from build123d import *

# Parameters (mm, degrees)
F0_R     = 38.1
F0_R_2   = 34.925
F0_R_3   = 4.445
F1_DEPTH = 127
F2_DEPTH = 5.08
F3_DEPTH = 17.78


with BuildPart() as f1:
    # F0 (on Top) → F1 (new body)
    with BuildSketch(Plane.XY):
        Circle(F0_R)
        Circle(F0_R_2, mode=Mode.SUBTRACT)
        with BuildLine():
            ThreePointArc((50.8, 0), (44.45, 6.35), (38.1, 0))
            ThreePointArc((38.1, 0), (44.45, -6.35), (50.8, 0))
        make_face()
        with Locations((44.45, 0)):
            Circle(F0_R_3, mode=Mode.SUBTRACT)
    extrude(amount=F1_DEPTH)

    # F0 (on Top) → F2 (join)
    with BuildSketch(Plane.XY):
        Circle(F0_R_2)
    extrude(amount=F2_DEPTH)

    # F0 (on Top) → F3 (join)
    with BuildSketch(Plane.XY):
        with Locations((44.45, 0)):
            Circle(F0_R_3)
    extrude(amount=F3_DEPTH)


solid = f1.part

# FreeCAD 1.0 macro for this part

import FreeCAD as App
import Part
import Sketcher
Q = App.Units.Quantity

doc = App.newDocument("Part")
body = doc.addObject("PartDesign::Body", "Body")
body.AllowCompound = True

sketch1 = body.newObject("Sketcher::SketchObject", "Sketch")
sketch1.AttachmentSupport = (doc.getObject("XY_Plane"), [""])
sketch1.MapMode = "FlatFace"
sketch1.addGeometry(Part.Circle(App.Vector(0, 0, 0), App.Vector(0, 0, 1), 38.1), False)
sketch1.addGeometry(Part.Circle(App.Vector(0, 0, 0), App.Vector(0, 0, 1), 34.9), False)
sketch1.addGeometry(Part.Circle(App.Vector(44.5, 0, 0), App.Vector(0, 0, 1), 6.3), False)
sketch1.addGeometry(Part.Circle(App.Vector(44.5, 0, 0), App.Vector(0, 0, 1), 4.4), False)
sketch1.addConstraint(Sketcher.Constraint("Coincident", 0, 3, -1, 1))
sketch1.addConstraint(Sketcher.Constraint("Coincident", 1, 3, -1, 1))
sketch1.addConstraint(Sketcher.Constraint("Coincident", 3, 3, 2, 3))
sketch1.addConstraint(Sketcher.Constraint("PointOnObject", 2, 3, -1))
sketch1.addConstraint(Sketcher.Constraint("Diameter", 0, Q("3 in")))
sketch1.addConstraint(Sketcher.Constraint("Diameter", 2, Q("0.5 in")))
sketch1.addConstraint(Sketcher.Constraint("Diameter", 1, Q("2.75 in")))
sketch1.addConstraint(Sketcher.Constraint("Diameter", 3, Q("0.35 in")))
sketch1.addConstraint(Sketcher.Constraint("DistanceX", -1, 1, 2, 3, Q("1.75 in")))
pad1 = body.newObject("PartDesign::Pad", "Pad")
pad1.Profile = sketch1
pad1.Length = Q("5 in")

sketch2 = body.newObject("Sketcher::SketchObject", "Sketch001")
sketch2.AttachmentSupport = (doc.getObject("XY_Plane"), [""])
sketch2.MapMode = "FlatFace"
sketch2.addGeometry(Part.Circle(App.Vector(0, 0, 0), App.Vector(0, 0, 1), 35), False)
sketch2.addConstraint(Sketcher.Constraint("Coincident", 0, 3, -1, 1))
sketch2.addConstraint(Sketcher.Constraint("Diameter", 0, Q("2.75 in")))
pad2 = body.newObject("PartDesign::Pad", "Pad001")
pad2.Profile = sketch2
pad2.Length = Q("0.2 in")

sketch3 = body.newObject("Sketcher::SketchObject", "Sketch002")
sketch3.AttachmentSupport = (doc.getObject("XY_Plane"), [""])
sketch3.MapMode = "FlatFace"
sketch3.addGeometry(Part.Circle(App.Vector(44.5, 0, 0), App.Vector(0, 0, 1), 4.4), False)
sketch3.addConstraint(Sketcher.Constraint("PointOnObject", 0, 3, -1))
sketch3.addConstraint(Sketcher.Constraint("Diameter", 0, Q("0.35 in")))
sketch3.addConstraint(Sketcher.Constraint("DistanceX", -1, 1, 0, 3, Q("1.75 in")))
pad3 = body.newObject("PartDesign::Pad", "Pad002")
pad3.Profile = sketch3
pad3.Length = Q("0.7 in")

doc.recompute()
